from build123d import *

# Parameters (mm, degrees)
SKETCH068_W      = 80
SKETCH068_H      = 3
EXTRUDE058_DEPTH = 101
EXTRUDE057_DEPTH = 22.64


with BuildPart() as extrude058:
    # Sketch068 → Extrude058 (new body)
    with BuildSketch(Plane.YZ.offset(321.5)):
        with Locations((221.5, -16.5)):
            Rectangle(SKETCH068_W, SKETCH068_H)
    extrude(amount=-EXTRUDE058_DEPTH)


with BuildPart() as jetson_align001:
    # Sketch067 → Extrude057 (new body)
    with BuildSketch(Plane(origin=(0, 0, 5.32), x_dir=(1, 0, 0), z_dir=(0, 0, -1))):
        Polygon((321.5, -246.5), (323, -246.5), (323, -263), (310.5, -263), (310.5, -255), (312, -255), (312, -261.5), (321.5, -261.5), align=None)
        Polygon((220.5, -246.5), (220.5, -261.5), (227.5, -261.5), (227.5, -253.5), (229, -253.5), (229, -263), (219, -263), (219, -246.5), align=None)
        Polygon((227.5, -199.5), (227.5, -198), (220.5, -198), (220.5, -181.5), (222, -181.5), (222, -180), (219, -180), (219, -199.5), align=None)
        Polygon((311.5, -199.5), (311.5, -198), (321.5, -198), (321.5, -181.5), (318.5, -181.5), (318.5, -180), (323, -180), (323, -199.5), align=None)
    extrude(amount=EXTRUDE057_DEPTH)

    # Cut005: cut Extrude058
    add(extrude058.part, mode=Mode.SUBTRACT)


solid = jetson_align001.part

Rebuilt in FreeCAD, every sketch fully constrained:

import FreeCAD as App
import Part
import Sketcher
from FreeCAD import Vector

doc = App.newDocument("Part")
params = doc.addObject("Spreadsheet::Sheet", "Params")
for row, (alias, value) in enumerate([
    ("sketch1_width", "80 mm"),
    ("sketch1_height", "3 mm"),
    ("pad1_length", "101 mm"),
    ("sketch2_width", "10 mm"),
    ("sketch2_width2", "7 mm"),
    ("sketch2_height", "15 mm"),
    ("sketch2_height2", "8 mm"),
    ("sketch2_width3", "9.5 mm"),
    ("pad2_length", "22.64 mm"),
], start=1):
    params.set(f"A{row}", alias)
    params.set(f"B{row}", "=" + value)
    params.setAlias(f"B{row}", alias)

body = doc.addObject("PartDesign::Body", "Body")

sketch1 = body.newObject("Sketcher::SketchObject", "Sketch")
sketch1.AttachmentSupport = (doc.getObject("YZ_Plane"), [""])
sketch1.MapMode = "FlatFace"
sketch1.AttachmentOffset = App.Placement(Vector(0, 0, 321.5), App.Rotation())
sketch1.addGeometry([
    Part.LineSegment(Vector(181.5, -15, 0), Vector(181.5, -18, 0)),
    Part.LineSegment(Vector(181.5, -18, 0), Vector(261.5, -18, 0)),
    Part.LineSegment(Vector(261.5, -18, 0), Vector(261.5, -15, 0)),
    Part.LineSegment(Vector(261.5, -15, 0), Vector(181.5, -15, 0)),
], False)
sketch1.addConstraint([
    Sketcher.Constraint("Coincident", 0, 2, 1, 1),
    Sketcher.Constraint("Coincident", 1, 2, 2, 1),
    Sketcher.Constraint("Coincident", 2, 2, 3, 1),
    Sketcher.Constraint("Coincident", 3, 2, 0, 1),
    Sketcher.Constraint("Vertical", 0),
    Sketcher.Constraint("Horizontal", 1),
    Sketcher.Constraint("Vertical", 2),
    Sketcher.Constraint("Horizontal", 3),
    Sketcher.Constraint("DistanceX", 1, 1, 1, 2, 80.0),
    Sketcher.Constraint("DistanceY", 0, 2, 0, 1, 3.0),
    Sketcher.Constraint("DistanceY", 0, 2, -1, 1, 18.0),
    Sketcher.Constraint("DistanceX", -1, 1, 0, 2, 181.5),
])
sketch1.setExpression("Constraints[8]", "Params.sketch1_width")
sketch1.setExpression("Constraints[9]", "Params.sketch1_height")
pad1 = body.newObject("PartDesign::Pad", "Pad")
pad1.Profile = sketch1
pad1.setExpression("Length", "Params.pad1_length")
pad1.Reversed = True
body2 = doc.addObject("PartDesign::Body", "Body001")
body2.AllowCompound = True

sketch2 = body2.newObject("Sketcher::SketchObject", "Sketch001")
sketch2.AttachmentSupport = (doc.getObject("XY_Plane001"), [""])
sketch2.MapMode = "FlatFace"
sketch2.AttachmentOffset = App.Placement(Vector(0, 0, 5.32), App.Rotation())
sketch2.addGeometry([
    Part.LineSegment(Vector(323, 246.5, 0), Vector(321.5, 246.5, 0)),
    Part.LineSegment(Vector(321.5, 246.5, 0), Vector(321.5, 261.5, 0)),
    Part.LineSegment(Vector(321.5, 261.5, 0), Vector(312, 261.5, 0)),
    Part.LineSegment(Vector(312, 261.5, 0), Vector(312, 255, 0)),
    Part.LineSegment(Vector(312, 255, 0), Vector(310.5, 255, 0)),
    Part.LineSegment(Vector(310.5, 255, 0), Vector(310.5, 263, 0)),
    Part.LineSegment(Vector(310.5, 263, 0), Vector(323, 263, 0)),
    Part.LineSegment(Vector(323, 263, 0), Vector(323, 246.5, 0)),
    Part.LineSegment(Vector(220.5, 261.5, 0), Vector(220.5, 246.5, 0)),
    Part.LineSegment(Vector(220.5, 246.5, 0), Vector(219, 246.5, 0)),
    Part.LineSegment(Vector(219, 246.5, 0), Vector(219, 263, 0)),
    Part.LineSegment(Vector(219, 263, 0), Vector(229, 263, 0)),
    Part.LineSegment(Vector(229, 263, 0), Vector(229, 253.5, 0)),
    Part.LineSegment(Vector(229, 253.5, 0), Vector(227.5, 253.5, 0)),
    Part.LineSegment(Vector(227.5, 253.5, 0), Vector(227.5, 261.5, 0)),
    Part.LineSegment(Vector(227.5, 261.5, 0), Vector(220.5, 261.5, 0)),
    Part.LineSegment(Vector(227.5, 199.5, 0), Vector(227.5, 198, 0)),
    Part.LineSegment(Vector(227.5, 198, 0), Vector(220.5, 198, 0)),
    Part.LineSegment(Vector(220.5, 198, 0), Vector(220.5, 181.5, 0)),
    Part.LineSegment(Vector(220.5, 181.5, 0), Vector(222, 181.5, 0)),
    Part.LineSegment(Vector(222, 181.5, 0), Vector(222, 180, 0)),
    Part.LineSegment(Vector(222, 180, 0), Vector(219, 180, 0)),
    Part.LineSegment(Vector(219, 180, 0), Vector(219, 199.5, 0)),
    Part.LineSegment(Vector(219, 199.5, 0), Vector(227.5, 199.5, 0)),
    Part.LineSegment(Vector(311.5, 198, 0), Vector(311.5, 199.5, 0)),
    Part.LineSegment(Vector(311.5, 199.5, 0), Vector(323, 199.5, 0)),
    Part.LineSegment(Vector(323, 199.5, 0), Vector(323, 180, 0)),
    Part.LineSegment(Vector(323, 180, 0), Vector(318.5, 180, 0)),
    Part.LineSegment(Vector(318.5, 180, 0), Vector(318.5, 181.5, 0)),
    Part.LineSegment(Vector(318.5, 181.5, 0), Vector(321.5, 181.5, 0)),
    Part.LineSegment(Vector(321.5, 181.5, 0), Vector(321.5, 198, 0)),
    Part.LineSegment(Vector(321.5, 198, 0), Vector(311.5, 198, 0)),
], False)
sketch2.addConstraint([
    Sketcher.Constraint("Coincident", 0, 2, 1, 1),
    Sketcher.Constraint("Coincident", 1, 2, 2, 1),
    Sketcher.Constraint("Coincident", 2, 2, 3, 1),
    Sketcher.Constraint("Coincident", 3, 2, 4, 1),
    Sketcher.Constraint("Coincident", 4, 2, 5, 1),
    Sketcher.Constraint("Coincident", 5, 2, 6, 1),
    Sketcher.Constraint("Coincident", 6, 2, 7, 1),
    Sketcher.Constraint("Coincident", 7, 2, 0, 1),
    Sketcher.Constraint("Coincident", 8, 2, 9, 1),
    Sketcher.Constraint("Coincident", 9, 2, 10, 1),
    Sketcher.Constraint("Coincident", 10, 2, 11, 1),
    Sketcher.Constraint("Coincident", 11, 2, 12, 1),
    Sketcher.Constraint("Coincident", 12, 2, 13, 1),
    Sketcher.Constraint("Coincident", 13, 2, 14, 1),
    Sketcher.Constraint("Coincident", 14, 2, 15, 1),
    Sketcher.Constraint("Coincident", 15, 2, 8, 1),
    Sketcher.Constraint("Coincident", 16, 2, 17, 1),
    Sketcher.Constraint("Coincident", 17, 2, 18, 1),
    Sketcher.Constraint("Coincident", 18, 2, 19, 1),
    Sketcher.Constraint("Coincident", 19, 2, 20, 1),
    Sketcher.Constraint("Coincident", 20, 2, 21, 1),
    Sketcher.Constraint("Coincident", 21, 2, 22, 1),
    Sketcher.Constraint("Coincident", 22, 2, 23, 1),
    Sketcher.Constraint("Coincident", 23, 2, 16, 1),
    Sketcher.Constraint("Coincident", 24, 2, 25, 1),
    Sketcher.Constraint("Coincident", 25, 2, 26, 1),
    Sketcher.Constraint("Coincident", 26, 2, 27, 1),
    Sketcher.Constraint("Coincident", 27, 2, 28, 1),
    Sketcher.Constraint("Coincident", 28, 2, 29, 1),
    Sketcher.Constraint("Coincident", 29, 2, 30, 1),
    Sketcher.Constraint("Coincident", 30, 2, 31, 1),
    Sketcher.Constraint("Coincident", 31, 2, 24, 1),
    Sketcher.Constraint("Horizontal", 0),
    Sketcher.Constraint("Vertical", 1),
    Sketcher.Constraint("Horizontal", 2),
    Sketcher.Constraint("Vertical", 3),
    Sketcher.Constraint("Horizontal", 4),
    Sketcher.Constraint("Vertical", 5),
    Sketcher.Constraint("Horizontal", 6),
    Sketcher.Constraint("Vertical", 7),
    Sketcher.Constraint("Vertical", 8),
    Sketcher.Constraint("Horizontal", 9),
    Sketcher.Constraint("Vertical", 10),
    Sketcher.Constraint("Horizontal", 11),
    Sketcher.Constraint("Vertical", 12),
    Sketcher.Constraint("Horizontal", 13),
    Sketcher.Constraint("Vertical", 14),
    Sketcher.Constraint("Horizontal", 15),
    Sketcher.Constraint("Vertical", 16),
    Sketcher.Constraint("Horizontal", 17),
    Sketcher.Constraint("Vertical", 18),
    Sketcher.Constraint("Horizontal", 19),
    Sketcher.Constraint("Vertical", 20),
    Sketcher.Constraint("Horizontal", 21),
    Sketcher.Constraint("Vertical", 22),
    Sketcher.Constraint("Horizontal", 23),
    Sketcher.Constraint("Vertical", 24),
    Sketcher.Constraint("Horizontal", 25),
    Sketcher.Constraint("Vertical", 26),
    Sketcher.Constraint("Horizontal", 27),
    Sketcher.Constraint("Vertical", 28),
    Sketcher.Constraint("Horizontal", 29),
    Sketcher.Constraint("Vertical", 30),
    Sketcher.Constraint("Horizontal", 31),
    Sketcher.Constraint("Horizontal", 7, 2, 8, 2),
    Sketcher.Constraint("Horizontal", 6, 2, 10, 2),
    Sketcher.Constraint("Horizontal", 2, 2, 14, 2),
    Sketcher.Constraint("Horizontal", 23, 2, 24, 2),
    Sketcher.Constraint("Horizontal", 21, 2, 26, 2),
    Sketcher.Constraint("Horizontal", 19, 2, 28, 2),
    Sketcher.Constraint("Horizontal", 17, 2, 30, 2),
    Sketcher.Constraint("Vertical", 14, 2, 16, 2),
    Sketcher.Constraint("Vertical", 15, 2, 17, 2),
    Sketcher.Constraint("Vertical", 10, 2, 21, 2),
    Sketcher.Constraint("Vertical", 7, 2, 25, 2),
    Sketcher.Constraint("Vertical", 1, 2, 29, 2),
    Sketcher.Constraint("Equal", 0, 4),
    Sketcher.Constraint("Equal", 4, 9),
    Sketcher.Constraint("Equal", 9, 13),
    Sketcher.Constraint("Equal", 13, 19),
    Sketcher.Constraint("Equal", 21, 29),
    Sketcher.Constraint("Equal", 11, 31),
    Sketcher.Constraint("Equal", 2, 12),
    Sketcher.Constraint("Equal", 5, 14),
    Sketcher.Constraint("Equal", 19, 16),
    Sketcher.Constraint("Equal", 10, 18),
    Sketcher.Constraint("Equal", 16, 20),
    Sketcher.Constraint("DistanceX", 11, 1, 11, 2, 10.0),
    Sketcher.Constraint("DistanceX", 15, 2, 15, 1, 7.0),
    Sketcher.Constraint("DistanceY", 1, 1, 1, 2, 15.0),
    Sketcher.Constraint("DistanceY", 5, 1, 5, 2, 8.0),
    Sketcher.Constraint("DistanceX", 2, 2, 2, 1, 9.5),
    Sketcher.Constraint("DistanceX", -1, 1, 2, 2, 312.0),
    Sketcher.Constraint("DistanceY", -1, 1, 3, 2, 255.0),
    Sketcher.Constraint("DistanceX", -1, 1, 9, 2, 219.0),
    Sketcher.Constraint("DistanceY", -1, 1, 16, 2, 198.0),
])
sketch2.setExpression("Constraints[87]", "Params.sketch2_width")
sketch2.setExpression("Constraints[88]", "Params.sketch2_width2")
sketch2.setExpression("Constraints[89]", "Params.sketch2_height")
sketch2.setExpression("Constraints[90]", "Params.sketch2_height2")
sketch2.setExpression("Constraints[91]", "Params.sketch2_width3")
pad2 = body2.newObject("PartDesign::Pad", "Pad001")
pad2.Profile = sketch2
pad2.setExpression("Length", "Params.pad2_length")
pad2.Reversed = True
doc.recompute()

boolean = body2.newObject("PartDesign::Boolean", "Boolean")
boolean.Type = "Cut"
boolean.addObjects([body])

doc.recompute()
